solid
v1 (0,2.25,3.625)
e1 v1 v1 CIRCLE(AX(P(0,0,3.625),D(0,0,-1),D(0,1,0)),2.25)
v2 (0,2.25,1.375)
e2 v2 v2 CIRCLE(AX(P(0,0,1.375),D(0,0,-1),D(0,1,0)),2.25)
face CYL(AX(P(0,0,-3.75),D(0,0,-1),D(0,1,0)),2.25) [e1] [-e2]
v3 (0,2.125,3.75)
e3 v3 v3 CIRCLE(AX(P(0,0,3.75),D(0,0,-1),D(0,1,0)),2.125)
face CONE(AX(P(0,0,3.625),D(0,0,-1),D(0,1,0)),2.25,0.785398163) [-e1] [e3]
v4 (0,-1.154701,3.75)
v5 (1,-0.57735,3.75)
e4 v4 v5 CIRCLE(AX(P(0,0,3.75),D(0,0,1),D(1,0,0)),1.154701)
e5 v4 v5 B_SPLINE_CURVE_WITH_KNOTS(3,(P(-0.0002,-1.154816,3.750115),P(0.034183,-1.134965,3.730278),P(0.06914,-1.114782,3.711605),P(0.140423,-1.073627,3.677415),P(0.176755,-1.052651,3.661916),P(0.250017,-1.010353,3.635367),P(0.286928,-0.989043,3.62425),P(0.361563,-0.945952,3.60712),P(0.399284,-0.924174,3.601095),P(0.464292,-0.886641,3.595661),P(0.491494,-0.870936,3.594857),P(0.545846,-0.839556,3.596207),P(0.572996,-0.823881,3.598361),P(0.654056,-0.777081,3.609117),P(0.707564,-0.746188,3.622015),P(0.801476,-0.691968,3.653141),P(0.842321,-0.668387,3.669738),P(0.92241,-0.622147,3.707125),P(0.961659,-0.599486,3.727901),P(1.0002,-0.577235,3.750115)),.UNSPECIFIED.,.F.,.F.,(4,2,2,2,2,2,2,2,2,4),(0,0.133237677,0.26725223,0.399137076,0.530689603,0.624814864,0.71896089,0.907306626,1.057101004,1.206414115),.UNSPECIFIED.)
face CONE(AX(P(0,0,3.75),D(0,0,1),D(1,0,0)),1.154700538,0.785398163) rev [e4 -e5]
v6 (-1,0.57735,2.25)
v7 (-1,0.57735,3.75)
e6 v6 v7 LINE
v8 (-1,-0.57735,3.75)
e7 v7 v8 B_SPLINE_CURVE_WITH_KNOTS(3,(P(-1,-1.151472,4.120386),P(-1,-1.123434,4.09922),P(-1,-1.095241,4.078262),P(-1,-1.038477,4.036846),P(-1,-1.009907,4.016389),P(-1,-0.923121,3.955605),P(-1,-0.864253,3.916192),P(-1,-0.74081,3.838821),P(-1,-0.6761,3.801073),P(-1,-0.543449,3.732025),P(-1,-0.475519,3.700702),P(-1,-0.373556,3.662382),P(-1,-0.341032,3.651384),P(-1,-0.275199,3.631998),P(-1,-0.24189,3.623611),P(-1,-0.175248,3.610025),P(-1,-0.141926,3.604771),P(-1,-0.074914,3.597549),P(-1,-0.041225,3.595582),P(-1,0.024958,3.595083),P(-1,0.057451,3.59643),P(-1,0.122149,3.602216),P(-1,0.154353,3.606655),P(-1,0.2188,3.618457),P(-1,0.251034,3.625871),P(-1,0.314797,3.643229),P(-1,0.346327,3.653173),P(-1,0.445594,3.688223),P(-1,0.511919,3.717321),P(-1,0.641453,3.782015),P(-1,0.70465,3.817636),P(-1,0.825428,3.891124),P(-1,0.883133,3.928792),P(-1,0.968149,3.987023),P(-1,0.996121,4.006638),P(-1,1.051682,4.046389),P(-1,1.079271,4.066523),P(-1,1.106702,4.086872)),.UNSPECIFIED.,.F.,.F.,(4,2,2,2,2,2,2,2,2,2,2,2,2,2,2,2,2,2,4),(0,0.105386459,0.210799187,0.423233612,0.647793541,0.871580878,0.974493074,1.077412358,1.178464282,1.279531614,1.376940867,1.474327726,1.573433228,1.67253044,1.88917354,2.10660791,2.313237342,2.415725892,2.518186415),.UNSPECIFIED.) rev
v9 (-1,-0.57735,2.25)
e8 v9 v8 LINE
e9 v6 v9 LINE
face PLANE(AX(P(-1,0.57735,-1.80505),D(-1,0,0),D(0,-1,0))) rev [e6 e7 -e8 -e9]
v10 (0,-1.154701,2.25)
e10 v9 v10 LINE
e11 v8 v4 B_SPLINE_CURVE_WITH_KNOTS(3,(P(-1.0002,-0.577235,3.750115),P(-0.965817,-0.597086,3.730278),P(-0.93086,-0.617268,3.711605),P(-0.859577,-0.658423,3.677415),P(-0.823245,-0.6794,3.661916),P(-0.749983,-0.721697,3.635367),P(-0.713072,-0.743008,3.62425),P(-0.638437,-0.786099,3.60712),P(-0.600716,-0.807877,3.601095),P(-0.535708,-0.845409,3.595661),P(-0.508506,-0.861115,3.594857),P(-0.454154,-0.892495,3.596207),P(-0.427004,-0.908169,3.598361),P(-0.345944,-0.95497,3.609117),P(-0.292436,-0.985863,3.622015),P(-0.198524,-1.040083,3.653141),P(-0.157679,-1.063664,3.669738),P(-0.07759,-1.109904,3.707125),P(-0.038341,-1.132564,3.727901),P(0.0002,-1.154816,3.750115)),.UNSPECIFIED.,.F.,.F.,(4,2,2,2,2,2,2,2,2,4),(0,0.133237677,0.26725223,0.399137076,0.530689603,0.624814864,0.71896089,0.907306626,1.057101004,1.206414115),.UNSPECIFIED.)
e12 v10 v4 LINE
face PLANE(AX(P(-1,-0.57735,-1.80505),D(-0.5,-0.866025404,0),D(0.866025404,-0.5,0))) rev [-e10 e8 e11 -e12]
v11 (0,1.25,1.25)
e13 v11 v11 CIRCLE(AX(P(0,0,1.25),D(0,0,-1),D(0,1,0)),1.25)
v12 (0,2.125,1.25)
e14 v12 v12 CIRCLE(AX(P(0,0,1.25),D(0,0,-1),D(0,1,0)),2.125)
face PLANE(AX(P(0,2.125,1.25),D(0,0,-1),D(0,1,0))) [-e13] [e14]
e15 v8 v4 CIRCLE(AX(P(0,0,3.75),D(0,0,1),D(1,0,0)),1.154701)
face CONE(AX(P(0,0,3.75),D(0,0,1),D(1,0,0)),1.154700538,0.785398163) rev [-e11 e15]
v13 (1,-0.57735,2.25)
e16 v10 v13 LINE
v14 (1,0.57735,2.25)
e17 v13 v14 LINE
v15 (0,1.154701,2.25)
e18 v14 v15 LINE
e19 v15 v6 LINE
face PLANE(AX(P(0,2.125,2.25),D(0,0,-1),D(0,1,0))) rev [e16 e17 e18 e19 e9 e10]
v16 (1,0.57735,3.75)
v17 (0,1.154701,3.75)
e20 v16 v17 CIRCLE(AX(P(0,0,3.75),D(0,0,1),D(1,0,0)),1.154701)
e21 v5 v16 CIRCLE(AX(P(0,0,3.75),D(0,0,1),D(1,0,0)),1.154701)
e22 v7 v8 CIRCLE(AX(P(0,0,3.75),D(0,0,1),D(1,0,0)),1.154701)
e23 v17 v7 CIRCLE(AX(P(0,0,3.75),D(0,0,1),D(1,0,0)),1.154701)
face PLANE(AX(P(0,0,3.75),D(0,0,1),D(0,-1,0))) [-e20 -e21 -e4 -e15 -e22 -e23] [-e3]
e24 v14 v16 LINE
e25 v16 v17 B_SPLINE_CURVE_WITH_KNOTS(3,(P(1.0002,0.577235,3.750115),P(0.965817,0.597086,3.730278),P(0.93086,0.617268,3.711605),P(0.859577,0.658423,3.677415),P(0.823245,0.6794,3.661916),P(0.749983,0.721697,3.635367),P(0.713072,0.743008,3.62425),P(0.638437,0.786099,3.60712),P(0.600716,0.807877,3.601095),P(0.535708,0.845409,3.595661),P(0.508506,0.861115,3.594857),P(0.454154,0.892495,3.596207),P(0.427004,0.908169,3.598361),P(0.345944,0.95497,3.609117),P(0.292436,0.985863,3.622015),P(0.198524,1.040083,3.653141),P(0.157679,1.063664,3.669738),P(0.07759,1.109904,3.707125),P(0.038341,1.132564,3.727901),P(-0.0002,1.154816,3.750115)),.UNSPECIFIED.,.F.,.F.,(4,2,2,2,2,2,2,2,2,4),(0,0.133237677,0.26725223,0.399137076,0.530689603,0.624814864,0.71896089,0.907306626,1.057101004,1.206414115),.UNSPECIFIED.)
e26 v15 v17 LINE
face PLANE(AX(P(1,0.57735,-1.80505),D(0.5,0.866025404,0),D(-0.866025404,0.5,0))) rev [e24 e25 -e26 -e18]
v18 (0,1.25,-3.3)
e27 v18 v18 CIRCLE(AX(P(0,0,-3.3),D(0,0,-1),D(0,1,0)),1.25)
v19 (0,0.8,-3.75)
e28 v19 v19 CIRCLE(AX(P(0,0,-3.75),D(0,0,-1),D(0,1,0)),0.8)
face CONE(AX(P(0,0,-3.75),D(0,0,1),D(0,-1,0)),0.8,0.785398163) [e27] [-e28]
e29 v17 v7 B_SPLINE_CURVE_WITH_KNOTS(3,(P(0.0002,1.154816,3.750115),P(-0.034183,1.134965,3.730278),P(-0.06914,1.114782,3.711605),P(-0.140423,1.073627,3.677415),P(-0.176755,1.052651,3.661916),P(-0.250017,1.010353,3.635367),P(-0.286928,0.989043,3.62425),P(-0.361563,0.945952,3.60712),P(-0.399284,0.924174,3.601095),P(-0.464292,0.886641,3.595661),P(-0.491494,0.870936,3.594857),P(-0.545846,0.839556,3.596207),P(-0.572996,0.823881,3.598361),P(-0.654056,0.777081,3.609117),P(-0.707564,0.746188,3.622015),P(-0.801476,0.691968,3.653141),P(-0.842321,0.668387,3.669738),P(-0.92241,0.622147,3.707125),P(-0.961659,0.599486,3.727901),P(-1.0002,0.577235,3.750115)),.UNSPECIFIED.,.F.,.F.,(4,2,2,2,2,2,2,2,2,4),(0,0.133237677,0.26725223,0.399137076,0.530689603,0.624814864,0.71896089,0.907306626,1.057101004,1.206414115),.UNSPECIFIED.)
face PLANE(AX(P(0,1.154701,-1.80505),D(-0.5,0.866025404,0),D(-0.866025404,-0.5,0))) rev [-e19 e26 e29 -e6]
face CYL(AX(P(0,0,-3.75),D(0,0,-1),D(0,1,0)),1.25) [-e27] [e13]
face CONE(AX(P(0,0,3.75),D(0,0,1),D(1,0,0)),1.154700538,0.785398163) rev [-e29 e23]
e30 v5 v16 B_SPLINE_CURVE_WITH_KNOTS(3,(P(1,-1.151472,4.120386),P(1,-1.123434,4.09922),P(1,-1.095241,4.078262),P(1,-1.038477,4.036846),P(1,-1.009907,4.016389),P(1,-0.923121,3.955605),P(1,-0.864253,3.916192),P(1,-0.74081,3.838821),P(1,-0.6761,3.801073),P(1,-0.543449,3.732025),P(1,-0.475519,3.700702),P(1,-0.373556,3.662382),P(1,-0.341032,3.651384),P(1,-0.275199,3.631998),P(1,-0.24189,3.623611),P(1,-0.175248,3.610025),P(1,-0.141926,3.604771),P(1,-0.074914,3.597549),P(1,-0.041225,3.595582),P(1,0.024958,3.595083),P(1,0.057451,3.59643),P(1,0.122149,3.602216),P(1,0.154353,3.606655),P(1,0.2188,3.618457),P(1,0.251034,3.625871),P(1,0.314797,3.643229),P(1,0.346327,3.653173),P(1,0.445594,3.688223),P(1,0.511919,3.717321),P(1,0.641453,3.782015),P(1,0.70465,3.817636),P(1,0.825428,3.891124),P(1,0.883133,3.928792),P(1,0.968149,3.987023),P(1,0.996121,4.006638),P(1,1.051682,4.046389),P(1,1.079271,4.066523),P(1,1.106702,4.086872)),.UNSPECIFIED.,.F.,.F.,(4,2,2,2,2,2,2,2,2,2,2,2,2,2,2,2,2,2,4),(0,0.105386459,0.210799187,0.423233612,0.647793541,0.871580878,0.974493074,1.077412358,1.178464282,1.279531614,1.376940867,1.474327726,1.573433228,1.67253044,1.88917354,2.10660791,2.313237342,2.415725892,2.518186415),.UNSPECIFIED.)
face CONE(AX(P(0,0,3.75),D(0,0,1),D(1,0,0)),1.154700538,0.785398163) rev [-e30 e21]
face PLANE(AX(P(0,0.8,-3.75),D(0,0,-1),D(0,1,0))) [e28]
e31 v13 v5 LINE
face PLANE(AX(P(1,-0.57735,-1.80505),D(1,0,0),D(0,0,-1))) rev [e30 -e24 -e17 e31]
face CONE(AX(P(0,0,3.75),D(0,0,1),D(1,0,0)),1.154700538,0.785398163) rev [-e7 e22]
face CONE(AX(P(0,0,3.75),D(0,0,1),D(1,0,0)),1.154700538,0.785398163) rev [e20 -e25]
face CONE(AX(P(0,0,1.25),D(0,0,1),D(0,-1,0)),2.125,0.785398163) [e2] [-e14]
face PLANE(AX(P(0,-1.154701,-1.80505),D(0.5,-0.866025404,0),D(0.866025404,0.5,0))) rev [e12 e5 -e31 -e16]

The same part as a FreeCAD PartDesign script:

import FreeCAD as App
import Part
import Sketcher
from FreeCAD import Vector
Q = App.Units.Quantity


def faces_at(feature, points):
    """Names of the faces that lie closest to the given points."""
    faces = feature.Shape.Faces
    near = lambda p: min(range(len(faces)), key=lambda i: faces[i].distToShape(Part.Vertex(*p))[0])
    return sorted({f"Face{near(p) + 1}" for p in points})


def add_polygon(sketch, points):
    """Adds a closed chain of lines whose ends are joined by coincident constraints."""
    first, n = sketch.GeometryCount, len(points)
    for a, b in zip(points, points[1:] + points[:1]):
        sketch.addGeometry(Part.LineSegment(App.Vector(*a, 0), App.Vector(*b, 0)), False)
    for i in range(n):
        sketch.addConstraint(Sketcher.Constraint("Coincident", first + i, 2, first + (i + 1) % n, 1))

doc = App.newDocument("Part")
params = doc.addObject("Spreadsheet::Sheet", "Params")
for row, (alias, value) in enumerate([
    ("sketch1_width", "0.8 mm"),
    ("sketch1_height", "7.5 mm"),
    ("sketch1_height2", "4.55 mm"),
    ("sketch1_height3", "2.25 mm"),
    ("revolution_angle", "360 deg"),
    ("pocket1_length", "1.5 mm"),
    ("pad1_length", "1.5 mm"),
    ("draft_angle", "45 deg"),
], start=1):
    params.set(f"A{row}", alias)
    params.set(f"B{row}", "=" + value)
    params.setAlias(f"B{row}", alias)

body = doc.addObject("PartDesign::Body", "Body")

# Sketch on YZ plane
sketch1 = doc.addObject("Sketcher::SketchObject", "Sketch")
body.addObject(sketch1)
sketch1.AttachmentSupport = (doc.YZ_Plane, [""])
sketch1.MapMode = "FlatFace"
add_polygon(sketch1, [(2.12, 3.75), (0, 3.75), (0, -3.75), (0.8, -3.75), (1.25, -3.3), (1.25, 1.25), (2.12, 1.25), (2.25, 1.38), (2.25, 3.62)])  # lines 0-8
sketch1.addConstraint([
    Sketcher.Constraint("Horizontal", 0),
    Sketcher.Constraint("Vertical", 1),
    Sketcher.Constraint("Horizontal", 2),
    Sketcher.Constraint("Vertical", 4),
    Sketcher.Constraint("Horizontal", 5),
    Sketcher.Constraint("Vertical", 7),
    Sketcher.Constraint("Symmetric", 0, 2, 1, 2, -1, 1),
    Sketcher.Constraint("Parallel", 3, 6),
    Sketcher.Constraint("Perpendicular", 6, 8),
    Sketcher.Constraint("Vertical", 5, 2, 8, 2),
    Sketcher.Constraint("Equal", 6, 8),
    Sketcher.Constraint("DistanceX", 2, 1, 2, 2, Q("0.8 mm")),
    Sketcher.Constraint("DistanceY", 1, 2, 1, 1, Q("7.5 mm")),
    Sketcher.Constraint("DistanceY", 2, 2, 4, 2, Q("5 mm")),
    Sketcher.Constraint("DistanceX", 4, 2, 6, 2, Q("1 mm")),
    Sketcher.Constraint("DistanceY", 4, 1, 4, 2, Q("4.55 mm")),
    Sketcher.Constraint("DistanceY", 7, 1, 7, 2, Q("2.25 mm")),
])
sketch1.setExpression("Constraints[20]", "Params.sketch1_width")
sketch1.setExpression("Constraints[21]", "Params.sketch1_height")
sketch1.setExpression("Constraints[24]", "Params.sketch1_height2")
sketch1.setExpression("Constraints[25]", "Params.sketch1_height3")
revolution = doc.addObject("PartDesign::Revolution", "Revolution")
body.addObject(revolution)
revolution.Profile = sketch1
revolution.ReferenceAxis = (sketch1, ["V_Axis"])
revolution.setExpression("Angle", "Params.revolution_angle")

# Sketch on XY plane
sketch2 = doc.addObject("Sketcher::SketchObject", "Sketch001")
body.addObject(sketch2)
sketch2.AttachmentSupport = (doc.XY_Plane, [""])
sketch2.MapMode = "FlatFace"
sketch2.AttachmentOffset = App.Placement(Vector(0, 0, 3.75), App.Rotation())
add_polygon(sketch2, [(1, -0.6), (1, 0.6), (0, 1.2), (-1, 0.6), (-1, -0.6), (0, -1.2)])  # lines 0-5
sketch2.addConstraint([
    Sketcher.Constraint("Vertical", 0),
    Sketcher.Constraint("Vertical", 3),
    Sketcher.Constraint("Symmetric", 0, 2, 3, 2, -1, 1),
    Sketcher.Constraint("Symmetric", 1, 2, 4, 2, -1, 1),
    Sketcher.Constraint("PointOnObject", 1, 2, -2),
    Sketcher.Constraint("Parallel", 2, 5),
    Sketcher.Constraint("Horizontal", 0, 2, 2, 2),
    Sketcher.Constraint("Angle", 1, Q("150 deg")),
    Sketcher.Constraint("DistanceX", -1, 1, 0, 2, Q("1 mm")),
    Sketcher.Constraint("DistanceY", 0, 1, 0, 2, Q("1.154701 mm")),
])
pocket1 = doc.addObject("PartDesign::Pocket", "Pocket")
body.addObject(pocket1)
pocket1.Profile = sketch2
pocket1.setExpression("Length", "Params.pocket1_length")
body2 = doc.addObject("PartDesign::Body", "Body001")

# Sketch on XY plane
sketch3 = doc.addObject("Sketcher::SketchObject", "Sketch002")
body2.addObject(sketch3)
sketch3.AttachmentSupport = (doc.getObject("XY_Plane001"), [""])
sketch3.MapMode = "FlatFace"
sketch3.AttachmentOffset = App.Placement(Vector(0, 0, 3.75), App.Rotation())
sketch3.addGeometry(Part.Circle(Vector(0, 0, 0), Vector(0, 0, 1), 1.2), False)
sketch3.addConstraint([
    Sketcher.Constraint("Coincident", 0, 3, -1, 1),
    Sketcher.Constraint("Diameter", 0, Q("2.309401 mm")),
])
pad1 = doc.addObject("PartDesign::Pad", "Pad")
body2.addObject(pad1)
pad1.Profile = sketch3
pad1.setExpression("Length", "Params.pad1_length")
pad1.Reversed = True
doc.recompute()

datumplane = doc.addObject("PartDesign::Plane", "DatumPlane")
body2.addObject(datumplane)
datumplane.AttachmentSupport = (doc.getObject("XY_Plane001"), [""])
datumplane.MapMode = "FlatFace"
datumplane.AttachmentOffset = App.Placement(Vector(0, 0, 3.75), App.Rotation())
draft = doc.addObject("PartDesign::Draft", "Draft")
body2.addObject(draft)
draft.Base = (pad1, faces_at(pad1, [(-1.155, 0, 3)]))
draft.NeutralPlane = (datumplane, [""])
draft.setExpression("Angle", "Params.draft_angle")
draft.Reversed = True
doc.recompute()

boolean = doc.addObject("PartDesign::Boolean", "Boolean")
body.addObject(boolean)
boolean.Type = "Cut"
boolean.addObjects([body2])

doc.recompute()
